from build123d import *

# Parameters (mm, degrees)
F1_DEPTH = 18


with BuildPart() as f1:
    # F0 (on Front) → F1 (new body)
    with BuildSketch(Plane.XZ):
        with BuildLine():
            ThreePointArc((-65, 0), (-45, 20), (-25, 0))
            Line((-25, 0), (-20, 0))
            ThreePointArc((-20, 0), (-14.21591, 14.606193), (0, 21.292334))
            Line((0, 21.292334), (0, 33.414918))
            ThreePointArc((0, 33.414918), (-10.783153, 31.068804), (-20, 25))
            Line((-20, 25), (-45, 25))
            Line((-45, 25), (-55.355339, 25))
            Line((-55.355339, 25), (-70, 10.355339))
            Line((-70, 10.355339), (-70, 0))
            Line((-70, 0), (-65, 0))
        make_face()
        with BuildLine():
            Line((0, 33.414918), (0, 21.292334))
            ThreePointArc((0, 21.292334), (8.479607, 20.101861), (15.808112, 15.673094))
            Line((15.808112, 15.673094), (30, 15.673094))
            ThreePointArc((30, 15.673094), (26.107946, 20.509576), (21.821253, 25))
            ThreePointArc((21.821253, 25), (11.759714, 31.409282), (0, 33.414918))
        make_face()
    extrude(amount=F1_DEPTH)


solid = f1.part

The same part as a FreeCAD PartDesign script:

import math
import FreeCAD as App
import Part
import Sketcher
from FreeCAD import Vector
Q = App.Units.Quantity

doc = App.newDocument("Part")
body = doc.addObject("PartDesign::Body", "Body")

# Sketch on XZ plane
sketch1 = doc.addObject("Sketcher::SketchObject", "Sketch")
body.addObject(sketch1)
sketch1.AttachmentSupport = (doc.XZ_Plane, [""])
sketch1.MapMode = "FlatFace"
sketch1.addGeometry([
    Part.ArcOfCircle(Part.Circle(Vector(-45, 0, 0), Vector(0, 0, 1), 20), math.radians(0), math.radians(180)),  # 0
    Part.LineSegment(Vector(-25, 0, 0), Vector(-20, 0, 0)),  # 1
    Part.ArcOfCircle(Part.Circle(Vector(1.334087, 0.000001, 0), Vector(0, 0, 1), 21.334087), math.radians(93.585222), math.radians(180.000002)),  # 2
    Part.ArcOfCircle(Part.Circle(Vector(1.334087, -0.000001, 0), Vector(0, 0, 1), 21.334088), math.radians(47.277678), math.radians(93.585222)),  # 3
    Part.LineSegment(Vector(15.808112, 15.673094, 0), Vector(30, 15.673094, 0)),  # 4
    Part.ArcOfCircle(Part.Circle(Vector(-29.0988, -27.90112, 0), Vector(0, 0, 1), 73.426019), math.radians(36.401771), math.radians(46.093158)),  # 5
    Part.ArcOfCircle(Part.Circle(Vector(0.910623, 3.275821, 0), Vector(0, 0, 1), 30.15285), math.radians(46.093174), math.radians(91.730609)),  # 6
    Part.ArcOfCircle(Part.Circle(Vector(0.910625, 3.275834, 0), Vector(0, 0, 1), 30.152838), math.radians(91.730613), math.radians(133.906836)),  # 7
    Part.LineSegment(Vector(-20, 25, 0), Vector(-55.355339, 25, 0)),  # 8
    Part.LineSegment(Vector(-55.355339, 25, 0), Vector(-70, 10.355339, 0)),  # 9
    Part.LineSegment(Vector(-70, 10.355339, 0), Vector(-70, 0, 0)),  # 10
    Part.LineSegment(Vector(-70, 0, 0), Vector(-65, 0, 0)),  # 11
], False)
sketch1.addConstraint([
    Sketcher.Constraint("Coincident", 0, 1, 1, 1),
    Sketcher.Constraint("Coincident", 1, 2, 2, 2),
    Sketcher.Constraint("Coincident", 2, 1, 3, 2),
    Sketcher.Constraint("Coincident", 3, 1, 4, 1),
    Sketcher.Constraint("Coincident", 4, 2, 5, 1),
    Sketcher.Constraint("Coincident", 5, 2, 6, 1),
    Sketcher.Constraint("Coincident", 6, 2, 7, 1),
    Sketcher.Constraint("Coincident", 7, 2, 8, 1),
    Sketcher.Constraint("Coincident", 8, 2, 9, 1),
    Sketcher.Constraint("Coincident", 9, 2, 10, 1),
    Sketcher.Constraint("Coincident", 10, 2, 11, 1),
    Sketcher.Constraint("Coincident", 11, 2, 0, 2),
    Sketcher.Constraint("Horizontal", 1),
    Sketcher.Constraint("Horizontal", 4),
    Sketcher.Constraint("Horizontal", 8),
    Sketcher.Constraint("Vertical", 10),
    Sketcher.Constraint("Horizontal", 11),
    Sketcher.Constraint("Coincident", 3, 3, 2, 3),
    Sketcher.Constraint("PointOnObject", 0, 3, -1),
    Sketcher.Constraint("PointOnObject", 2, 3, -1),
    Sketcher.Constraint("PointOnObject", 0, 1, -1),
    Sketcher.Constraint("PointOnObject", 2, 1, -2),
    Sketcher.Constraint("PointOnObject", 6, 2, -2),
    Sketcher.Constraint("PointOnObject", 10, 2, -1),
    Sketcher.Constraint("Radius", 0, Q("20 mm")),
    Sketcher.Constraint("DistanceX", 1, 1, 1, 2, Q("5 mm")),
    Sketcher.Constraint("DistanceX", 11, 1, 11, 2, Q("5 mm")),
    Sketcher.Constraint("DistanceX", 0, 3, -1, 1, Q("45 mm")),
    Sketcher.Constraint("DistanceX", -1, 1, 4, 2, Q("30 mm")),
    Sketcher.Constraint("DistanceY", -1, 1, 5, 2, Q("25 mm")),
    Sketcher.Constraint("DistanceX", 7, 2, -1, 1, Q("20 mm")),
    Sketcher.Constraint("DistanceY", -1, 1, 7, 2, Q("25 mm")),
    Sketcher.Constraint("Radius", 3, Q("21.334088 mm")),
    Sketcher.Constraint("Radius", 5, Q("73.426019 mm")),
    Sketcher.Constraint("Radius", 6, Q("30.15285 mm")),
    Sketcher.Constraint("Radius", 7, Q("30.152838 mm")),
    Sketcher.Constraint("DistanceX", 8, 2, 8, 1, Q("35.355339 mm")),
    Sketcher.Constraint("DistanceY", 10, 2, 10, 1, Q("10.355339 mm")),
    Sketcher.Constraint("DistanceX", 5, 3, -1, 1, Q("29.0988 mm")),
    Sketcher.Constraint("DistanceY", 7, 3, 2, 1, Q("18.0165 mm")),
    Sketcher.Constraint("DistanceX", 4, 1, 4, 2, Q("14.191888 mm")),
])
pad1 = doc.addObject("PartDesign::Pad", "Pad")
body.addObject(pad1)
pad1.Profile = sketch1
pad1.Length = 18

doc.recompute()
